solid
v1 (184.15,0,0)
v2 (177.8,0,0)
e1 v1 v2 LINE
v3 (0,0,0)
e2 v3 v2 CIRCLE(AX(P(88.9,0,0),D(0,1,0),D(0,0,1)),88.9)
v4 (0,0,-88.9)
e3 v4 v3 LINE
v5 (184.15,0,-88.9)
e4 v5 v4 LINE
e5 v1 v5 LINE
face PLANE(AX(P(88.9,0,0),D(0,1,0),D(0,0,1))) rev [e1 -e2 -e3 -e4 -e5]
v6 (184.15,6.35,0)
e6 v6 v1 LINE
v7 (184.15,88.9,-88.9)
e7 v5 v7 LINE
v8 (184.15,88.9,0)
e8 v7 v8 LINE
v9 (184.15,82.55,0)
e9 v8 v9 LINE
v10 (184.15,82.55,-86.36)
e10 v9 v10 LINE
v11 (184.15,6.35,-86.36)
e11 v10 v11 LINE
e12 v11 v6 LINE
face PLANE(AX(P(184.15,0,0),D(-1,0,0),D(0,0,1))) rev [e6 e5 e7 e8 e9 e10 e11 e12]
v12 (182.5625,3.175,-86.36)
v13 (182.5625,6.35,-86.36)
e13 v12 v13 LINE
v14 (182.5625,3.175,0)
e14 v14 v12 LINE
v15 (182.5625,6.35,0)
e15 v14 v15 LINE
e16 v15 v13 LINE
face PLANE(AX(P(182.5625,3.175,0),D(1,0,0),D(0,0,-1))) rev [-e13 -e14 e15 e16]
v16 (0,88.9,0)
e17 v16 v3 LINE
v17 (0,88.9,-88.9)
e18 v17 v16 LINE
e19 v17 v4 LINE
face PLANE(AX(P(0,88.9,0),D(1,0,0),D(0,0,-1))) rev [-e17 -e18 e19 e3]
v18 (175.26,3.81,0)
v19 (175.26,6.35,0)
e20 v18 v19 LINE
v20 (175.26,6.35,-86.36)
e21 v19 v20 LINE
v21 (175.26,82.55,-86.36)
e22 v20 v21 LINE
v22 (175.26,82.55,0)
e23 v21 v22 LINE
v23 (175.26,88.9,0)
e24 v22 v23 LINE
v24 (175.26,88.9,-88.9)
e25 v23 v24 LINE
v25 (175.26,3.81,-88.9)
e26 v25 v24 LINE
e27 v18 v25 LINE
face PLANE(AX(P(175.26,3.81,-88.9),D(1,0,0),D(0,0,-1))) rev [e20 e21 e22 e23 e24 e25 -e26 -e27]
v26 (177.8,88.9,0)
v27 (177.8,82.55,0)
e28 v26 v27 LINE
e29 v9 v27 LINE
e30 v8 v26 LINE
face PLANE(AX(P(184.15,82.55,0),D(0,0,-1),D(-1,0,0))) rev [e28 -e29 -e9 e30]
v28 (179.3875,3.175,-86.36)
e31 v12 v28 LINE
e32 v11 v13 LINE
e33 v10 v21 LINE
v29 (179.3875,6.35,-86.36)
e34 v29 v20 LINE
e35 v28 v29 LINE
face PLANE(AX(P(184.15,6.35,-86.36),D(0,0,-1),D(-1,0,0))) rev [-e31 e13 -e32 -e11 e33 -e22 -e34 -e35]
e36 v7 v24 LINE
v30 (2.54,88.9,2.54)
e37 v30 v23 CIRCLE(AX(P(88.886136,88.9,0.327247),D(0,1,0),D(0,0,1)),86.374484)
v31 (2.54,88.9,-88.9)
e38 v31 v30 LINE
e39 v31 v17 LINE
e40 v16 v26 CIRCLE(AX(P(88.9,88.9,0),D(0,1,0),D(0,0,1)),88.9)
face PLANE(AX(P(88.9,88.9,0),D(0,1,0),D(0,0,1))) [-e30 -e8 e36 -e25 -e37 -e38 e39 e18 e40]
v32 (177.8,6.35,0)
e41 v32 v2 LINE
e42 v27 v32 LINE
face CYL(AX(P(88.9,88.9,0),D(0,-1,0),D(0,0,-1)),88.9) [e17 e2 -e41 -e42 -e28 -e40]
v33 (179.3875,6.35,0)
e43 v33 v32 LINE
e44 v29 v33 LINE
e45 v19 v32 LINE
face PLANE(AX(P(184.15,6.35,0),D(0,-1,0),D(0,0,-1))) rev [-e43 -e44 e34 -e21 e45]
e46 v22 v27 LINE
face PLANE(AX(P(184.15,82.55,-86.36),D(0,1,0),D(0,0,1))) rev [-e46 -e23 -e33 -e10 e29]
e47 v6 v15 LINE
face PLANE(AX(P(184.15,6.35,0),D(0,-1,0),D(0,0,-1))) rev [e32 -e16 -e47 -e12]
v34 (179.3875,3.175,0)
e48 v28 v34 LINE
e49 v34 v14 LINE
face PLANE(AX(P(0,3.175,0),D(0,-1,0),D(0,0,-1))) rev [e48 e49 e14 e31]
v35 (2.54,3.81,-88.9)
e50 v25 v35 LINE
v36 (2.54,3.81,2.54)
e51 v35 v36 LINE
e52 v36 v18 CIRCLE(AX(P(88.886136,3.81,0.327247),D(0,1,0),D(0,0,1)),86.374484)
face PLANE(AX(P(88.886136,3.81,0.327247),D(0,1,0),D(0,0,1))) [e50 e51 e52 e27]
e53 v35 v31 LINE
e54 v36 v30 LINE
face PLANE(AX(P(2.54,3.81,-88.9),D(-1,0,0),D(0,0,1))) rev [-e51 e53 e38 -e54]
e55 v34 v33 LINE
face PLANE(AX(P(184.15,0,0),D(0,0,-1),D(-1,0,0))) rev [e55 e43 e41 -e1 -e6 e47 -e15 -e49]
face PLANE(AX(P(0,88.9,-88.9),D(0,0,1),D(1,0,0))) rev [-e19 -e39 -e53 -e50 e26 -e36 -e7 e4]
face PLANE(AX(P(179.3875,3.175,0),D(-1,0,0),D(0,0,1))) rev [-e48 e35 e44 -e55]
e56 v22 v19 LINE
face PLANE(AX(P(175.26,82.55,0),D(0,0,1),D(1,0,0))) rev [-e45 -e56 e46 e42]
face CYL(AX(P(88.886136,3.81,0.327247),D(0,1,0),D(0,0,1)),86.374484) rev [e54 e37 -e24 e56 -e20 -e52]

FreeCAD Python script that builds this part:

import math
import FreeCAD as App
import Part
import Sketcher

V = App.Vector
Q = App.Units.Quantity


def add_polygon(sketch, points):
    """Adds a closed chain of lines whose ends are joined by coincident constraints."""
    first, n = sketch.GeometryCount, len(points)
    for a, b in zip(points, points[1:] + points[:1]):
        sketch.addGeometry(Part.LineSegment(App.Vector(*a, 0), App.Vector(*b, 0)), False)
    for i in range(n):
        sketch.addConstraint(Sketcher.Constraint("Coincident", first + i, 2, first + (i + 1) % n, 1))

doc = App.newDocument("Part")
body = doc.addObject("PartDesign::Body", "Body")

# Sketch on XZ plane
sketch1 = body.newObject("Sketcher::SketchObject", "Sketch")
sketch1.AttachmentSupport = (doc.getObject("XZ_Plane"), [""])
sketch1.MapMode = "FlatFace"
sketch1.addGeometry(Part.LineSegment(V(0, -89, 0), V(0, 0, 0)), False)
sketch1.addGeometry(Part.ArcOfCircle(Part.Circle(V(89, 0, 0), V(0, 0, 1), 89), math.radians(0), math.radians(180)), False)
sketch1.addGeometry(Part.LineSegment(V(178, 0, 0), V(178, -89, 0)), False)
sketch1.addGeometry(Part.LineSegment(V(178, -89, 0), V(0, -89, 0)), False)
sketch1.addConstraint(Sketcher.Constraint("Tangent", 0, 2, 1, 2))
sketch1.addConstraint(Sketcher.Constraint("Tangent", 1, 1, 2, 1))
sketch1.addConstraint(Sketcher.Constraint("Coincident", 2, 2, 3, 1))
sketch1.addConstraint(Sketcher.Constraint("Coincident", 3, 2, 0, 1))
sketch1.addConstraint(Sketcher.Constraint("Vertical", 0))
sketch1.addConstraint(Sketcher.Constraint("Vertical", 2))
sketch1.addConstraint(Sketcher.Constraint("Horizontal", 3))
sketch1.addConstraint(Sketcher.Constraint("Coincident", 0, 2, -1, 1))
sketch1.addConstraint(Sketcher.Constraint("Radius", 1, Q("3.5 in")))
sketch1.addConstraint(Sketcher.Constraint("DistanceY", 0, 1, 0, 2, Q("3.5 in")))
pad1 = body.newObject("PartDesign::Pad", "Pad")
pad1.Profile = sketch1
pad1.Length = Q("3.5 in")
pad1.Reversed = True

# Sketch on XZ plane
sketch2 = body.newObject("Sketcher::SketchObject", "Sketch001")
sketch2.AttachmentSupport = (doc.getObject("XZ_Plane"), [""])
sketch2.MapMode = "FlatFace"
sketch2.AttachmentOffset = App.Placement(V(0, 0, -3.5 * 25.4), App.Rotation())
sketch2.addGeometry(Part.LineSegment(V(175, -89, 0), V(3, -89, 0)), False)
sketch2.addGeometry(Part.LineSegment(V(3, -89, 0), V(3, 3, 0)), False)
sketch2.addGeometry(Part.ArcOfCircle(Part.Circle(V(89, 0, 0), V(0, 0, 1), 86), math.radians(0), math.radians(179)), False)
sketch2.addGeometry(Part.LineSegment(V(175, 0, 0), V(175, -89, 0)), False)
sketch2.addConstraint(Sketcher.Constraint("Coincident", 0, 2, 1, 1))
sketch2.addConstraint(Sketcher.Constraint("Coincident", 1, 2, 2, 2))
sketch2.addConstraint(Sketcher.Constraint("Coincident", 2, 1, 3, 1))
sketch2.addConstraint(Sketcher.Constraint("Coincident", 3, 2, 0, 1))
sketch2.addConstraint(Sketcher.Constraint("Horizontal", 0))
sketch2.addConstraint(Sketcher.Constraint("Vertical", 1))
sketch2.addConstraint(Sketcher.Constraint("Vertical", 3))
sketch2.addConstraint(Sketcher.Constraint("PointOnObject", 2, 1, -1))
sketch2.addConstraint(Sketcher.Constraint("DistanceX", 0, 2, 0, 1, Q("6.8 in")))
sketch2.addConstraint(Sketcher.Constraint("DistanceY", 1, 1, 1, 2, Q("3.6 in")))
sketch2.addConstraint(Sketcher.Constraint("DistanceY", 3, 2, 3, 1, Q("3.5 in")))
sketch2.addConstraint(Sketcher.Constraint("DistanceX", -1, 1, 0, 2, Q("0.1 in")))
sketch2.addConstraint(Sketcher.Constraint("Radius", 2, 86.374484))
pocket1 = body.newObject("PartDesign::Pocket", "Pocket")
pocket1.Profile = sketch2
pocket1.Length = Q("3.35 in")
pocket1.Reversed = True

# Sketch on YZ plane
sketch3 = body.newObject("Sketcher::SketchObject", "Sketch002")
sketch3.AttachmentSupport = (doc.getObject("YZ_Plane"), [""])
sketch3.MapMode = "FlatFace"
sketch3.AttachmentOffset = App.Placement(V(0, 0, 7 * 25.4), App.Rotation())
add_polygon(sketch3, [(89, -89), (89, 0), (83, 0), (83, -86), (6, -86), (6, 0), (0, 0), (0, -89)])  # lines 0-7
sketch3.addConstraint(Sketcher.Constraint("Vertical", 0))
sketch3.addConstraint(Sketcher.Constraint("Horizontal", 1))
sketch3.addConstraint(Sketcher.Constraint("Vertical", 2))
sketch3.addConstraint(Sketcher.Constraint("Horizontal", 3))
sketch3.addConstraint(Sketcher.Constraint("Vertical", 4))
sketch3.addConstraint(Sketcher.Constraint("Horizontal", 5))
sketch3.addConstraint(Sketcher.Constraint("Vertical", 6))
sketch3.addConstraint(Sketcher.Constraint("Horizontal", 7))
sketch3.addConstraint(Sketcher.Constraint("Coincident", 5, 2, -1, 1))
sketch3.addConstraint(Sketcher.Constraint("PointOnObject", 0, 2, -1))
sketch3.addConstraint(Sketcher.Constraint("Equal", 1, 5))
sketch3.addConstraint(Sketcher.Constraint("Equal", 7, 0))
sketch3.addConstraint(Sketcher.Constraint("DistanceX", 3, 2, 3, 1, Q("3 in")))
sketch3.addConstraint(Sketcher.Constraint("DistanceX", 7, 1, 7, 2, Q("3.5 in")))
sketch3.addConstraint(Sketcher.Constraint("DistanceY", 2, 2, 2, 1, Q("3.4 in")))
pad2 = body.newObject("PartDesign::Pad", "Pad001")
pad2.Profile = sketch3
pad2.Length = Q("0.25 in")

# Sketch on XZ plane
sketch4 = body.newObject("Sketcher::SketchObject", "Sketch003")
sketch4.AttachmentSupport = (doc.getObject("XZ_Plane"), [""])
sketch4.MapMode = "FlatFace"
sketch4.AttachmentOffset = App.Placement(V(0, 0, -0.25 * 25.4), App.Rotation())
add_polygon(sketch4, [(179.4, -86.4), (179.4, 0), (182.6, 0), (182.6, -86.4)])  # lines 0-3
sketch4.addConstraint(Sketcher.Constraint("Vertical", 0))
sketch4.addConstraint(Sketcher.Constraint("Horizontal", 1))
sketch4.addConstraint(Sketcher.Constraint("Vertical", 2))
sketch4.addConstraint(Sketcher.Constraint("Horizontal", 3))
sketch4.addConstraint(Sketcher.Constraint("PointOnObject", 0, 2, -1))
sketch4.addConstraint(Sketcher.Constraint("DistanceY", 0, 1, 0, 2, Q("3.4 in")))
sketch4.addConstraint(Sketcher.Constraint("DistanceX", 1, 1, 1, 2, Q("0.125 in")))
sketch4.addConstraint(Sketcher.Constraint("DistanceX", -1, 1, 0, 2, Q("7.0625 in")))
pocket2 = body.newObject("PartDesign::Pocket", "Pocket001")
pocket2.Profile = sketch4
pocket2.Length = Q("0.125 in")
pocket2.Reversed = True

# Sketch on YZ plane
sketch5 = body.newObject("Sketcher::SketchObject", "Sketch004")
sketch5.AttachmentSupport = (doc.getObject("YZ_Plane"), [""])
sketch5.MapMode = "FlatFace"
sketch5.AttachmentOffset = App.Placement(V(0, 0, 7 * 25.4), App.Rotation())
add_polygon(sketch5, [(83, 0), (6, 0), (6, -86), (83, -86)])  # lines 0-3
sketch5.addConstraint(Sketcher.Constraint("Horizontal", 0))
sketch5.addConstraint(Sketcher.Constraint("Vertical", 1))
sketch5.addConstraint(Sketcher.Constraint("Horizontal", 2))
sketch5.addConstraint(Sketcher.Constraint("Vertical", 3))
sketch5.addConstraint(Sketcher.Constraint("PointOnObject", 0, 2, -1))
sketch5.addConstraint(Sketcher.Constraint("DistanceX", 0, 2, 0, 1, Q("3 in")))
sketch5.addConstraint(Sketcher.Constraint("DistanceY", 1, 2, 1, 1, Q("3.4 in")))
sketch5.addConstraint(Sketcher.Constraint("DistanceX", -1, 1, 0, 2, Q("0.25 in")))
pocket3 = body.newObject("PartDesign::Pocket", "Pocket002")
pocket3.Profile = sketch5
pocket3.Length = Q("0.1 in")

doc.recompute()
